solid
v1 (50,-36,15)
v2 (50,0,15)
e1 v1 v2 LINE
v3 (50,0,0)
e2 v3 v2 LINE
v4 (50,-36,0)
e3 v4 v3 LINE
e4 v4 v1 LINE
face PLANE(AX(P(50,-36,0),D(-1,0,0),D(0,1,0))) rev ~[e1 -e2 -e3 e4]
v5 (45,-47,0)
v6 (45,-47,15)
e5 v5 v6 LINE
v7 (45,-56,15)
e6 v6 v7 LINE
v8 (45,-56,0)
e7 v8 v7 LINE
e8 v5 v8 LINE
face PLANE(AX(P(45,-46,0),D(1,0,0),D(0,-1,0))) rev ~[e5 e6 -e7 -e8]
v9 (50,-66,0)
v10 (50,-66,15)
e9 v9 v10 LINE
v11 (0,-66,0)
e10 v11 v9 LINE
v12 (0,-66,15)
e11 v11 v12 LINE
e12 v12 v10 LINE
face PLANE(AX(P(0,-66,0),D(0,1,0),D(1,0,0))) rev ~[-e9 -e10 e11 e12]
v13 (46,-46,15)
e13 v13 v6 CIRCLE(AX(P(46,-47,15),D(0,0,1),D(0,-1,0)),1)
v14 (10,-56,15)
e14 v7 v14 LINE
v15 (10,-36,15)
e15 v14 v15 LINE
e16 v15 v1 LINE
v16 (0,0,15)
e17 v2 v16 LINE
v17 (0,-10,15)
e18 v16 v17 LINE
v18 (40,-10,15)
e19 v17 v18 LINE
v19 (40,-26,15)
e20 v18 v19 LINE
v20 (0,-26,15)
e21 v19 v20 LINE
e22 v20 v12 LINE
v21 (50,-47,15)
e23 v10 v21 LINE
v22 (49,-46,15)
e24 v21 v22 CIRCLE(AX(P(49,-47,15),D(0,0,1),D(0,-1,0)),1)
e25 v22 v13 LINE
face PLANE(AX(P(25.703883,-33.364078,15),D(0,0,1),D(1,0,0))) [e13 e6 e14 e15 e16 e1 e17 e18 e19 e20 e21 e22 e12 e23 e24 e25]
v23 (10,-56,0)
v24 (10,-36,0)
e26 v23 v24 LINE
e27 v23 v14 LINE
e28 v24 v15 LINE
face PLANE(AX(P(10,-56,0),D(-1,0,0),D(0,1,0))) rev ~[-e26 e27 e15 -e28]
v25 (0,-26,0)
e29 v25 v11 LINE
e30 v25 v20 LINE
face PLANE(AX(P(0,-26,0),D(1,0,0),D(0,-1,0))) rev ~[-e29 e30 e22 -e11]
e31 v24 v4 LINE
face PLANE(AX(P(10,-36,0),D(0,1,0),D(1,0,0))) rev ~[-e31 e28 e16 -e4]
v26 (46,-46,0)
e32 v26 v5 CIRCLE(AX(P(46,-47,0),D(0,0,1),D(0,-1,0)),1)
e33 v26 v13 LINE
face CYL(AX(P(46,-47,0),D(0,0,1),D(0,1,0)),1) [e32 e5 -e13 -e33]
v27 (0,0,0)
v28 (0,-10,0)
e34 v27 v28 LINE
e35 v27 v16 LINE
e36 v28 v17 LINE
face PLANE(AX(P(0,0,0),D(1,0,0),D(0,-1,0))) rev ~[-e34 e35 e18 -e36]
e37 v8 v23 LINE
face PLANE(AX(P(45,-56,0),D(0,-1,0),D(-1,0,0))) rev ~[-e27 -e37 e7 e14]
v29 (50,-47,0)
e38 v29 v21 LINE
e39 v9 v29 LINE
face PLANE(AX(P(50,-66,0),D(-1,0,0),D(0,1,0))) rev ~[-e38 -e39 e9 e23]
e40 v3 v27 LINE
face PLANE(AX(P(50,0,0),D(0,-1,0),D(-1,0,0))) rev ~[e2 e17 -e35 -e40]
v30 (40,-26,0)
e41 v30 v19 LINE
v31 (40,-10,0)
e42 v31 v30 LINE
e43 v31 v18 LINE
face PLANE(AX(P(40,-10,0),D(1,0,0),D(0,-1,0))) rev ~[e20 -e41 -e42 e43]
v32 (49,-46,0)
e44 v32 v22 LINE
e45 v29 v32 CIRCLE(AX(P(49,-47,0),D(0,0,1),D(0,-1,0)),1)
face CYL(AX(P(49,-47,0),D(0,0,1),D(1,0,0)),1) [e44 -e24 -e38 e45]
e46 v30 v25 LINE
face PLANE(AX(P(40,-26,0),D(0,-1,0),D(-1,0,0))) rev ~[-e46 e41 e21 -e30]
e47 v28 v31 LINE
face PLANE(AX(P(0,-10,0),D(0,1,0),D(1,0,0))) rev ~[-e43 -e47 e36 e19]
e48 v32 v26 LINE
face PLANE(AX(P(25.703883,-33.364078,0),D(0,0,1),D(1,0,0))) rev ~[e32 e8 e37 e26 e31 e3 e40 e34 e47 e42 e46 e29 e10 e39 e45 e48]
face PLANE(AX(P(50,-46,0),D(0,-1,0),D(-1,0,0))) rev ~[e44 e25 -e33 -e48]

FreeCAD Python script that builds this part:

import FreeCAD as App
import Part
import Sketcher
Q = App.Units.Quantity


def edges_at(feature, points):
    """Names of the edges that pass closest to the given points."""
    edges = feature.Shape.Edges
    near = lambda p: min(range(len(edges)), key=lambda i: edges[i].distToShape(Part.Vertex(*p))[0])
    return sorted({f"Edge{near(p) + 1}" for p in points})


def add_polygon(sketch, points):
    """Adds a closed chain of lines whose ends are joined by coincident constraints."""
    first, n = sketch.GeometryCount, len(points)
    for a, b in zip(points, points[1:] + points[:1]):
        sketch.addGeometry(Part.LineSegment(App.Vector(*a, 0), App.Vector(*b, 0)), False)
    for i in range(n):
        sketch.addConstraint(Sketcher.Constraint("Coincident", first + i, 2, first + (i + 1) % n, 1))

doc = App.newDocument("Part")
body = doc.addObject("PartDesign::Body", "Body")

sketch1 = body.newObject("Sketcher::SketchObject", "Sketch")
sketch1.AttachmentSupport = (doc.getObject("XY_Plane"), [""])
sketch1.MapMode = "FlatFace"
add_polygon(sketch1, [(0, -10), (40, -10), (40, -26), (0, -26), (0, -66), (50, -66), (50, -46), (45, -46), (45, -56), (10, -56), (10, -36), (50, -36), (50, 0), (0, 0)])
sketch1.addConstraint([
    Sketcher.Constraint("Horizontal", 0),
    Sketcher.Constraint("Vertical", 1),
    Sketcher.Constraint("Horizontal", 2),
    Sketcher.Constraint("Vertical", 3),
    Sketcher.Constraint("Horizontal", 4),
    Sketcher.Constraint("Vertical", 5),
    Sketcher.Constraint("Horizontal", 6),
    Sketcher.Constraint("Vertical", 7),
    Sketcher.Constraint("Horizontal", 8),
    Sketcher.Constraint("Vertical", 9),
    Sketcher.Constraint("Horizontal", 10),
    Sketcher.Constraint("Vertical", 11),
    Sketcher.Constraint("Horizontal", 12),
    Sketcher.Constraint("Vertical", 13),
    Sketcher.Constraint("Coincident", 12, 2, -1, 1),
    Sketcher.Constraint("PointOnObject", 2, 2, -2),
    Sketcher.Constraint("Vertical", 5, 2, 10, 2),
    Sketcher.Constraint("Equal", 2, 10),
    Sketcher.Constraint("Equal", 10, 3),
    Sketcher.Constraint("Equal", 5, 9),
    Sketcher.Constraint("Equal", 7, 13),
    Sketcher.Constraint("DistanceX", 0, 1, 0, 2, Q("40 mm")),
    Sketcher.Constraint("DistanceX", 4, 1, 4, 2, Q("50 mm")),
    Sketcher.Constraint("DistanceX", 6, 2, 6, 1, Q("5 mm")),
    Sketcher.Constraint("DistanceY", 1, 2, 1, 1, Q("16 mm")),
    Sketcher.Constraint("DistanceY", 5, 1, 5, 2, Q("20 mm")),
    Sketcher.Constraint("DistanceY", 7, 2, 7, 1, Q("10 mm")),
])
pad1 = body.newObject("PartDesign::Pad", "Pad")
pad1.Profile = sketch1
pad1.Length = 15
doc.recompute()

fillet = body.newObject("PartDesign::Fillet", "Fillet")
fillet.Base = (pad1, edges_at(pad1, [(50, -46, 7.5), (45, -46, 7.5)]))
fillet.Radius = 1

doc.recompute()
